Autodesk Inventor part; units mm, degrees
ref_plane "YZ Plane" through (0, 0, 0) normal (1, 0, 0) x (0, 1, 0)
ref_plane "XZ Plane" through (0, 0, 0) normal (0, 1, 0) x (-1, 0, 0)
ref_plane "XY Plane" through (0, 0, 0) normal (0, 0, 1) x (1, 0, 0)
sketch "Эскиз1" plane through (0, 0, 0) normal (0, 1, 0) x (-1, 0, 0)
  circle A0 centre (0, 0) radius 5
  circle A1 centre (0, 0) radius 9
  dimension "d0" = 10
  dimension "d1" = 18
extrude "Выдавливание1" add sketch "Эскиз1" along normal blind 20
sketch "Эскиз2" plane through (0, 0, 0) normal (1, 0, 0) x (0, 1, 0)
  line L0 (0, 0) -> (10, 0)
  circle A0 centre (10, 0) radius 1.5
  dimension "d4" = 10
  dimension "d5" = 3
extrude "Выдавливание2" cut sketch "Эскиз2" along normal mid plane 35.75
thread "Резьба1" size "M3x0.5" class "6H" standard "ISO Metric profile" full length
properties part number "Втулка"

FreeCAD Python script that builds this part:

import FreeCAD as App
import Part
import Sketcher

V = App.Vector
Q = App.Units.Quantity

doc = App.newDocument("Part")
body = doc.addObject("PartDesign::Body", "Body")

# Sketch on XZ plane
sketch1 = doc.addObject("Sketcher::SketchObject", "Sketch")
body.addObject(sketch1)
sketch1.AttachmentSupport = (doc.XZ_Plane, [""])
sketch1.MapMode = "FlatFace"
sketch1.addGeometry([
    Part.Circle(V(0, 0, 0), V(0, 0, 1), 9),
    Part.Circle(V(0, 0, 0), V(0, 0, 1), 5),
], False)
sketch1.addConstraint([
    Sketcher.Constraint("Coincident", 0, 3, -1, 1),
    Sketcher.Constraint("Coincident", 1, 3, -1, 1),
    Sketcher.Constraint("Diameter", 0, Q("18 mm")),
    Sketcher.Constraint("Diameter", 1, Q("10 mm")),
])
pad1 = doc.addObject("PartDesign::Pad", "Pad")
body.addObject(pad1)
pad1.Profile = sketch1
pad1.Length = 20
pad1.Reversed = True

# Sketch on YZ plane
sketch2 = doc.addObject("Sketcher::SketchObject", "Sketch001")
body.addObject(sketch2)
sketch2.AttachmentSupport = (doc.YZ_Plane, [""])
sketch2.MapMode = "FlatFace"
sketch2.addGeometry(Part.Circle(V(10, 0, 0), V(0, 0, 1), 1.5), False)
sketch2.addConstraint([
    Sketcher.Constraint("PointOnObject", 0, 3, -1),
    Sketcher.Constraint("Diameter", 0, Q("3 mm")),
    Sketcher.Constraint("DistanceX", -1, 1, 0, 3, Q("10 mm")),
])
pocket1 = doc.addObject("PartDesign::Pocket", "Pocket")
body.addObject(pocket1)
pocket1.Profile = sketch2
pocket1.Length = 35.75
pocket1.Midplane = True

doc.recompute()
